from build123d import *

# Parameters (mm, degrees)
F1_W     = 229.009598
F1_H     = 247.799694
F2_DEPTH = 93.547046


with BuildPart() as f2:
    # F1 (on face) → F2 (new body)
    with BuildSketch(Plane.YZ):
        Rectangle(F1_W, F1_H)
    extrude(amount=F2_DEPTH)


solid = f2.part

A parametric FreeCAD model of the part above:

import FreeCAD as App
import Part
import Sketcher
from FreeCAD import Vector
Q = App.Units.Quantity


def add_polygon(sketch, points):
    """Adds a closed chain of lines whose ends are joined by coincident constraints."""
    first, n = sketch.GeometryCount, len(points)
    for a, b in zip(points, points[1:] + points[:1]):
        sketch.addGeometry(Part.LineSegment(App.Vector(*a, 0), App.Vector(*b, 0)), False)
    for i in range(n):
        sketch.addConstraint(Sketcher.Constraint("Coincident", first + i, 2, first + (i + 1) % n, 1))

doc = App.newDocument("Part")
body = doc.addObject("PartDesign::Body", "Body")

# Sketch on YZ plane
sketch1 = body.newObject("Sketcher::SketchObject", "Sketch")
sketch1.AttachmentSupport = (doc.getObject("YZ_Plane"), [""])
sketch1.MapMode = "FlatFace"
add_polygon(sketch1, [(-114.504799, 123.899847), (-114.504799, -123.899847), (114.504799, -123.899847), (114.504799, 123.899847)])  # lines 0-3
sketch1.addConstraint([
    Sketcher.Constraint("Vertical", 0),
    Sketcher.Constraint("Horizontal", 1),
    Sketcher.Constraint("Vertical", 2),
    Sketcher.Constraint("Horizontal", 3),
    Sketcher.Constraint("Symmetric", 0, 2, 2, 2, -1, 1),
    Sketcher.Constraint("DistanceX", 1, 1, 1, 2, Q("229.009598 mm")),
    Sketcher.Constraint("DistanceY", 0, 2, 0, 1, Q("247.799694 mm")),
])
pad1 = body.newObject("PartDesign::Pad", "Pad")
pad1.Profile = sketch1
pad1.Length = 93.547046

doc.recompute()
